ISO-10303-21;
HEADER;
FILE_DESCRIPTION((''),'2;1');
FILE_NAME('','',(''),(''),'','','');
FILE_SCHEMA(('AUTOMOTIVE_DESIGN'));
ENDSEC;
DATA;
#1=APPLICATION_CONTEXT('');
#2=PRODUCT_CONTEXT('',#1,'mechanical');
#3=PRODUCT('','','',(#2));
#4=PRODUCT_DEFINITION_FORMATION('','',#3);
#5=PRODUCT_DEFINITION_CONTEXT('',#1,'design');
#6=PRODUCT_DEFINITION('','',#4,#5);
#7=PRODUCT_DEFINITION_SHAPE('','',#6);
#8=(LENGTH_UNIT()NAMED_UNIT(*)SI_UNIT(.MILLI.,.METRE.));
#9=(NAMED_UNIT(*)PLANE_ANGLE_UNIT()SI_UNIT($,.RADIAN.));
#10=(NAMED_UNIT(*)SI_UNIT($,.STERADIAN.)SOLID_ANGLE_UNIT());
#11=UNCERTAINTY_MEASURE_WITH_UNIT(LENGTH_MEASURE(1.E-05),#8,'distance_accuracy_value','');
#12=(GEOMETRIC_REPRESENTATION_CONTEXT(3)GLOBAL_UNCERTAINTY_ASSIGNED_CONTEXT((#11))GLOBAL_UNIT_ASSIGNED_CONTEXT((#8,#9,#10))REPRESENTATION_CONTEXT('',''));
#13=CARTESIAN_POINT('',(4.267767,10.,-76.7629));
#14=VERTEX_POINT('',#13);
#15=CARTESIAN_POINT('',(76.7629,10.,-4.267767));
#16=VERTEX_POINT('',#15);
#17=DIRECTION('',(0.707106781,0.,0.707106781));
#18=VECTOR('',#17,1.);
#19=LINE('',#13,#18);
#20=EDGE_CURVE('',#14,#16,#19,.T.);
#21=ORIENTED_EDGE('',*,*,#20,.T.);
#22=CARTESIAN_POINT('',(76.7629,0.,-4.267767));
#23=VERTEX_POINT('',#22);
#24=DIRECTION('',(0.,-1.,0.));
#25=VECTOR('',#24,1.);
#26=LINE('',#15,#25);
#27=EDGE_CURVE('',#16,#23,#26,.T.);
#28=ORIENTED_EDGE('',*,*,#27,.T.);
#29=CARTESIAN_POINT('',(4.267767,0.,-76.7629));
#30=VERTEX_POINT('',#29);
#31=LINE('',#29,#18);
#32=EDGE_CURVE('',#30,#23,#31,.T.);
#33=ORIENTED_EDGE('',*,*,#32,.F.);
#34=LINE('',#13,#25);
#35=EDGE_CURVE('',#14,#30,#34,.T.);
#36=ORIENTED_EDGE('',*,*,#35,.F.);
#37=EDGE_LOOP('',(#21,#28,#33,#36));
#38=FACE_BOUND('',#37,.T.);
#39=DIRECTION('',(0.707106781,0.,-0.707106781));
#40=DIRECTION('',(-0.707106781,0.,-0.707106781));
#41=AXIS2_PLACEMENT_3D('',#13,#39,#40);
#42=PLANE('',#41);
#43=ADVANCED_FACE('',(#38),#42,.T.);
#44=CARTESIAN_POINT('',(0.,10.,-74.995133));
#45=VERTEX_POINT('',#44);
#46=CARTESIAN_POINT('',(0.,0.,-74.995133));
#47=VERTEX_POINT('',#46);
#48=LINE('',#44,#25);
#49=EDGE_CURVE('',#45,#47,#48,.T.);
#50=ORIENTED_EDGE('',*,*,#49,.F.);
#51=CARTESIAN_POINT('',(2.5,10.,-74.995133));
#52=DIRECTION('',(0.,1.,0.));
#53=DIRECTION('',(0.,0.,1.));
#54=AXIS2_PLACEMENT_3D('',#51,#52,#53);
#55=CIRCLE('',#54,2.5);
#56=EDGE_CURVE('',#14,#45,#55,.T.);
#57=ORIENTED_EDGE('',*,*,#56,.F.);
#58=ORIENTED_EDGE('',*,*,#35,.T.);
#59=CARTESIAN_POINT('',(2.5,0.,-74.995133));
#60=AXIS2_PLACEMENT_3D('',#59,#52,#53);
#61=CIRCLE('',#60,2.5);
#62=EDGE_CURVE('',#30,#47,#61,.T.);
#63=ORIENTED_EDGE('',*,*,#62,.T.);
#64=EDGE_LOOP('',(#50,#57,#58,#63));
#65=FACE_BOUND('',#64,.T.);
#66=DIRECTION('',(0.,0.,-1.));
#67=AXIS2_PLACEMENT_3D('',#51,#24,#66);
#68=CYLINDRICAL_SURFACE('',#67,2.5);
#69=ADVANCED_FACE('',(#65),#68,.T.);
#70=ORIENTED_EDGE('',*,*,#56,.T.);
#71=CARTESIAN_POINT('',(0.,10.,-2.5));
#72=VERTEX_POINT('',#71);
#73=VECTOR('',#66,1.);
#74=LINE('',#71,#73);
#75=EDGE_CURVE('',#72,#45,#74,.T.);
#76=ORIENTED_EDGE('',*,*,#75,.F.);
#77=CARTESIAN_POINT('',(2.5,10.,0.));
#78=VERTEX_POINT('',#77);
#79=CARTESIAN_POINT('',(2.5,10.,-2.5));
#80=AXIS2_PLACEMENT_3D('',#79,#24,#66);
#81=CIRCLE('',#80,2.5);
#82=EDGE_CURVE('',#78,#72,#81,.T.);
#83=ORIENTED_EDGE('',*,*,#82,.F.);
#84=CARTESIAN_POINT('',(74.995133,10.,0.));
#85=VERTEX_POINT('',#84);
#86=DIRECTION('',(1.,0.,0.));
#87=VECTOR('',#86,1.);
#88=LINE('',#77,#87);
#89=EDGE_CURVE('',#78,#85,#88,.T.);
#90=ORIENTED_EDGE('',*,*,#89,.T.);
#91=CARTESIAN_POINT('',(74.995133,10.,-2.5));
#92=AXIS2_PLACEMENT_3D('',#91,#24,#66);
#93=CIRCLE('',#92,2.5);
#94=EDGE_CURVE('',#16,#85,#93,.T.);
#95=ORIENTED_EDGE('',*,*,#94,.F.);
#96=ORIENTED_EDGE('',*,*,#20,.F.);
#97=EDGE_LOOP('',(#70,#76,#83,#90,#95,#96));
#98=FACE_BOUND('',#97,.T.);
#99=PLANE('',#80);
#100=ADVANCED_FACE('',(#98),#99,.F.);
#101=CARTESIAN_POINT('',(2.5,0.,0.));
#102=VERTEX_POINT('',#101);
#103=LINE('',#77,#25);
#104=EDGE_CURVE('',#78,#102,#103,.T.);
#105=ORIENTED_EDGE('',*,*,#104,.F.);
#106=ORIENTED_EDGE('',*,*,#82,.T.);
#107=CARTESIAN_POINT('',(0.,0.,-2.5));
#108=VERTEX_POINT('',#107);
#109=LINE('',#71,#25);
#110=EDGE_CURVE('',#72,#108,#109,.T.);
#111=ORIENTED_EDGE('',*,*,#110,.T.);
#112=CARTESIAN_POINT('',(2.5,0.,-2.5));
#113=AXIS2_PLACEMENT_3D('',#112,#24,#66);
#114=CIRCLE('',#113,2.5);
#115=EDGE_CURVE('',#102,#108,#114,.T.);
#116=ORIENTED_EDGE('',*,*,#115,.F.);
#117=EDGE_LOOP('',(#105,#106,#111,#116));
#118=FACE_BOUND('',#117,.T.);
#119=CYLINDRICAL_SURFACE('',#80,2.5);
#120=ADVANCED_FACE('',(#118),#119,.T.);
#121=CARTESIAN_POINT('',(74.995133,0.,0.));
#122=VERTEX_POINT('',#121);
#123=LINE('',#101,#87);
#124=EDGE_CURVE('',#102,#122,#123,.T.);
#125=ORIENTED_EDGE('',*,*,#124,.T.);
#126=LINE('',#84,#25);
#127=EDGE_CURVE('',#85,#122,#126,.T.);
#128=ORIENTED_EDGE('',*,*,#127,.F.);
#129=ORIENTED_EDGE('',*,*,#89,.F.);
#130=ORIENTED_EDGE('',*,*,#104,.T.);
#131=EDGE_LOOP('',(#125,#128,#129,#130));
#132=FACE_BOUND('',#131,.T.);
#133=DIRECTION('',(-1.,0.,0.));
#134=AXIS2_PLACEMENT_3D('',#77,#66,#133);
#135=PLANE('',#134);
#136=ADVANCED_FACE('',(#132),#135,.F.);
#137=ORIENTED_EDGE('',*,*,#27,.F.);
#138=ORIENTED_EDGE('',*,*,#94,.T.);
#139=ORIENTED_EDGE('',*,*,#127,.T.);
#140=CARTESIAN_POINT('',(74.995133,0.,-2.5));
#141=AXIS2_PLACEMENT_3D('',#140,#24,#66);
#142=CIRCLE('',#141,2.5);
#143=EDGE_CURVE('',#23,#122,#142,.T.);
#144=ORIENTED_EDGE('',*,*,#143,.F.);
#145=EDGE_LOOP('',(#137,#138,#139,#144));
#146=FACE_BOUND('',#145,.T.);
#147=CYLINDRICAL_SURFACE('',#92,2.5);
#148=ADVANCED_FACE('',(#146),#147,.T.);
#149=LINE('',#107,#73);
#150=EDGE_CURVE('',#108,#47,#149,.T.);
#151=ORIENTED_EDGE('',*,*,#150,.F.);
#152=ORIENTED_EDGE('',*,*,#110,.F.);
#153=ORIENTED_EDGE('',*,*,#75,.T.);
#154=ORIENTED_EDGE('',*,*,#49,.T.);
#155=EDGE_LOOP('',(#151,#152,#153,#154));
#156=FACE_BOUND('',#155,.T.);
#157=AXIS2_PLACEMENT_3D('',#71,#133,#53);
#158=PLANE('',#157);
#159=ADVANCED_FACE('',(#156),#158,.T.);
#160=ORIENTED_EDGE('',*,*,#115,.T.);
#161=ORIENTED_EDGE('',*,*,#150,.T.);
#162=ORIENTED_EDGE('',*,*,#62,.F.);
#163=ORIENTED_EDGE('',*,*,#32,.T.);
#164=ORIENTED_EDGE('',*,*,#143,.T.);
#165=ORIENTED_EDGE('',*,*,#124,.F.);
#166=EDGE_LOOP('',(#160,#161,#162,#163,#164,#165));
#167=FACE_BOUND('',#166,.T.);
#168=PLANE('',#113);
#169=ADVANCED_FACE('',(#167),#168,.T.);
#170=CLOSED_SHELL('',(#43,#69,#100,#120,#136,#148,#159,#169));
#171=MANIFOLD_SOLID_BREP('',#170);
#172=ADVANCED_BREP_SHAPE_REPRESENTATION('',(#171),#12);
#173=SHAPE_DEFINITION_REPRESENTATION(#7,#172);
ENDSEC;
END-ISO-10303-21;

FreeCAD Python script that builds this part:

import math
import FreeCAD as App
import Part
import Sketcher

V = App.Vector
Q = App.Units.Quantity

doc = App.newDocument("Part")
body = doc.addObject("PartDesign::Body", "Body")

# Sketch on XZ plane
sketch1 = body.newObject("Sketcher::SketchObject", "Sketch")
sketch1.AttachmentSupport = (doc.getObject("XZ_Plane"), [""])
sketch1.MapMode = "FlatFace"
sketch1.addGeometry([
    Part.LineSegment(V(76.7629, -4.267767, 0), V(4.267767, -76.7629, 0)),  # 0
    Part.ArcOfCircle(Part.Circle(V(2.5, -74.995133, 0), V(0, 0, 1), 2.5), math.radians(180), math.radians(315)),  # 1
    Part.LineSegment(V(0, -74.995133, 0), V(0, -2.5, 0)),  # 2
    Part.ArcOfCircle(Part.Circle(V(2.5, -2.5, 0), V(0, 0, 1), 2.5), math.radians(90), math.radians(180)),  # 3
    Part.LineSegment(V(2.5, 0, 0), V(74.995133, 0, 0)),  # 4
    Part.ArcOfCircle(Part.Circle(V(74.995133, -2.5, 0), V(0, 0, 1), 2.5), math.radians(-45), math.radians(90)),  # 5
], False)
sketch1.addConstraint([
    Sketcher.Constraint("Tangent", 0, 2, 1, 2),
    Sketcher.Constraint("Tangent", 1, 1, 2, 1),
    Sketcher.Constraint("Tangent", 2, 2, 3, 2),
    Sketcher.Constraint("Tangent", 3, 1, 4, 1),
    Sketcher.Constraint("Tangent", 4, 2, 5, 2),
    Sketcher.Constraint("Tangent", 5, 1, 0, 1),
    Sketcher.Constraint("Vertical", 2),
    Sketcher.Constraint("Horizontal", 4),
    Sketcher.Constraint("Equal", 1, 3),
    Sketcher.Constraint("Equal", 3, 5),
    Sketcher.Constraint("PointOnObject", 1, 1, -2),
    Sketcher.Constraint("PointOnObject", 3, 1, -1),
    Sketcher.Constraint("Equal", 4, 2),
    Sketcher.Constraint("Radius", 1, Q("2.5 mm")),
    Sketcher.Constraint("Distance", 0, Q("102.5236 mm")),
])
pad1 = body.newObject("PartDesign::Pad", "Pad")
pad1.Profile = sketch1
pad1.Length = 10
pad1.Reversed = True

doc.recompute()
